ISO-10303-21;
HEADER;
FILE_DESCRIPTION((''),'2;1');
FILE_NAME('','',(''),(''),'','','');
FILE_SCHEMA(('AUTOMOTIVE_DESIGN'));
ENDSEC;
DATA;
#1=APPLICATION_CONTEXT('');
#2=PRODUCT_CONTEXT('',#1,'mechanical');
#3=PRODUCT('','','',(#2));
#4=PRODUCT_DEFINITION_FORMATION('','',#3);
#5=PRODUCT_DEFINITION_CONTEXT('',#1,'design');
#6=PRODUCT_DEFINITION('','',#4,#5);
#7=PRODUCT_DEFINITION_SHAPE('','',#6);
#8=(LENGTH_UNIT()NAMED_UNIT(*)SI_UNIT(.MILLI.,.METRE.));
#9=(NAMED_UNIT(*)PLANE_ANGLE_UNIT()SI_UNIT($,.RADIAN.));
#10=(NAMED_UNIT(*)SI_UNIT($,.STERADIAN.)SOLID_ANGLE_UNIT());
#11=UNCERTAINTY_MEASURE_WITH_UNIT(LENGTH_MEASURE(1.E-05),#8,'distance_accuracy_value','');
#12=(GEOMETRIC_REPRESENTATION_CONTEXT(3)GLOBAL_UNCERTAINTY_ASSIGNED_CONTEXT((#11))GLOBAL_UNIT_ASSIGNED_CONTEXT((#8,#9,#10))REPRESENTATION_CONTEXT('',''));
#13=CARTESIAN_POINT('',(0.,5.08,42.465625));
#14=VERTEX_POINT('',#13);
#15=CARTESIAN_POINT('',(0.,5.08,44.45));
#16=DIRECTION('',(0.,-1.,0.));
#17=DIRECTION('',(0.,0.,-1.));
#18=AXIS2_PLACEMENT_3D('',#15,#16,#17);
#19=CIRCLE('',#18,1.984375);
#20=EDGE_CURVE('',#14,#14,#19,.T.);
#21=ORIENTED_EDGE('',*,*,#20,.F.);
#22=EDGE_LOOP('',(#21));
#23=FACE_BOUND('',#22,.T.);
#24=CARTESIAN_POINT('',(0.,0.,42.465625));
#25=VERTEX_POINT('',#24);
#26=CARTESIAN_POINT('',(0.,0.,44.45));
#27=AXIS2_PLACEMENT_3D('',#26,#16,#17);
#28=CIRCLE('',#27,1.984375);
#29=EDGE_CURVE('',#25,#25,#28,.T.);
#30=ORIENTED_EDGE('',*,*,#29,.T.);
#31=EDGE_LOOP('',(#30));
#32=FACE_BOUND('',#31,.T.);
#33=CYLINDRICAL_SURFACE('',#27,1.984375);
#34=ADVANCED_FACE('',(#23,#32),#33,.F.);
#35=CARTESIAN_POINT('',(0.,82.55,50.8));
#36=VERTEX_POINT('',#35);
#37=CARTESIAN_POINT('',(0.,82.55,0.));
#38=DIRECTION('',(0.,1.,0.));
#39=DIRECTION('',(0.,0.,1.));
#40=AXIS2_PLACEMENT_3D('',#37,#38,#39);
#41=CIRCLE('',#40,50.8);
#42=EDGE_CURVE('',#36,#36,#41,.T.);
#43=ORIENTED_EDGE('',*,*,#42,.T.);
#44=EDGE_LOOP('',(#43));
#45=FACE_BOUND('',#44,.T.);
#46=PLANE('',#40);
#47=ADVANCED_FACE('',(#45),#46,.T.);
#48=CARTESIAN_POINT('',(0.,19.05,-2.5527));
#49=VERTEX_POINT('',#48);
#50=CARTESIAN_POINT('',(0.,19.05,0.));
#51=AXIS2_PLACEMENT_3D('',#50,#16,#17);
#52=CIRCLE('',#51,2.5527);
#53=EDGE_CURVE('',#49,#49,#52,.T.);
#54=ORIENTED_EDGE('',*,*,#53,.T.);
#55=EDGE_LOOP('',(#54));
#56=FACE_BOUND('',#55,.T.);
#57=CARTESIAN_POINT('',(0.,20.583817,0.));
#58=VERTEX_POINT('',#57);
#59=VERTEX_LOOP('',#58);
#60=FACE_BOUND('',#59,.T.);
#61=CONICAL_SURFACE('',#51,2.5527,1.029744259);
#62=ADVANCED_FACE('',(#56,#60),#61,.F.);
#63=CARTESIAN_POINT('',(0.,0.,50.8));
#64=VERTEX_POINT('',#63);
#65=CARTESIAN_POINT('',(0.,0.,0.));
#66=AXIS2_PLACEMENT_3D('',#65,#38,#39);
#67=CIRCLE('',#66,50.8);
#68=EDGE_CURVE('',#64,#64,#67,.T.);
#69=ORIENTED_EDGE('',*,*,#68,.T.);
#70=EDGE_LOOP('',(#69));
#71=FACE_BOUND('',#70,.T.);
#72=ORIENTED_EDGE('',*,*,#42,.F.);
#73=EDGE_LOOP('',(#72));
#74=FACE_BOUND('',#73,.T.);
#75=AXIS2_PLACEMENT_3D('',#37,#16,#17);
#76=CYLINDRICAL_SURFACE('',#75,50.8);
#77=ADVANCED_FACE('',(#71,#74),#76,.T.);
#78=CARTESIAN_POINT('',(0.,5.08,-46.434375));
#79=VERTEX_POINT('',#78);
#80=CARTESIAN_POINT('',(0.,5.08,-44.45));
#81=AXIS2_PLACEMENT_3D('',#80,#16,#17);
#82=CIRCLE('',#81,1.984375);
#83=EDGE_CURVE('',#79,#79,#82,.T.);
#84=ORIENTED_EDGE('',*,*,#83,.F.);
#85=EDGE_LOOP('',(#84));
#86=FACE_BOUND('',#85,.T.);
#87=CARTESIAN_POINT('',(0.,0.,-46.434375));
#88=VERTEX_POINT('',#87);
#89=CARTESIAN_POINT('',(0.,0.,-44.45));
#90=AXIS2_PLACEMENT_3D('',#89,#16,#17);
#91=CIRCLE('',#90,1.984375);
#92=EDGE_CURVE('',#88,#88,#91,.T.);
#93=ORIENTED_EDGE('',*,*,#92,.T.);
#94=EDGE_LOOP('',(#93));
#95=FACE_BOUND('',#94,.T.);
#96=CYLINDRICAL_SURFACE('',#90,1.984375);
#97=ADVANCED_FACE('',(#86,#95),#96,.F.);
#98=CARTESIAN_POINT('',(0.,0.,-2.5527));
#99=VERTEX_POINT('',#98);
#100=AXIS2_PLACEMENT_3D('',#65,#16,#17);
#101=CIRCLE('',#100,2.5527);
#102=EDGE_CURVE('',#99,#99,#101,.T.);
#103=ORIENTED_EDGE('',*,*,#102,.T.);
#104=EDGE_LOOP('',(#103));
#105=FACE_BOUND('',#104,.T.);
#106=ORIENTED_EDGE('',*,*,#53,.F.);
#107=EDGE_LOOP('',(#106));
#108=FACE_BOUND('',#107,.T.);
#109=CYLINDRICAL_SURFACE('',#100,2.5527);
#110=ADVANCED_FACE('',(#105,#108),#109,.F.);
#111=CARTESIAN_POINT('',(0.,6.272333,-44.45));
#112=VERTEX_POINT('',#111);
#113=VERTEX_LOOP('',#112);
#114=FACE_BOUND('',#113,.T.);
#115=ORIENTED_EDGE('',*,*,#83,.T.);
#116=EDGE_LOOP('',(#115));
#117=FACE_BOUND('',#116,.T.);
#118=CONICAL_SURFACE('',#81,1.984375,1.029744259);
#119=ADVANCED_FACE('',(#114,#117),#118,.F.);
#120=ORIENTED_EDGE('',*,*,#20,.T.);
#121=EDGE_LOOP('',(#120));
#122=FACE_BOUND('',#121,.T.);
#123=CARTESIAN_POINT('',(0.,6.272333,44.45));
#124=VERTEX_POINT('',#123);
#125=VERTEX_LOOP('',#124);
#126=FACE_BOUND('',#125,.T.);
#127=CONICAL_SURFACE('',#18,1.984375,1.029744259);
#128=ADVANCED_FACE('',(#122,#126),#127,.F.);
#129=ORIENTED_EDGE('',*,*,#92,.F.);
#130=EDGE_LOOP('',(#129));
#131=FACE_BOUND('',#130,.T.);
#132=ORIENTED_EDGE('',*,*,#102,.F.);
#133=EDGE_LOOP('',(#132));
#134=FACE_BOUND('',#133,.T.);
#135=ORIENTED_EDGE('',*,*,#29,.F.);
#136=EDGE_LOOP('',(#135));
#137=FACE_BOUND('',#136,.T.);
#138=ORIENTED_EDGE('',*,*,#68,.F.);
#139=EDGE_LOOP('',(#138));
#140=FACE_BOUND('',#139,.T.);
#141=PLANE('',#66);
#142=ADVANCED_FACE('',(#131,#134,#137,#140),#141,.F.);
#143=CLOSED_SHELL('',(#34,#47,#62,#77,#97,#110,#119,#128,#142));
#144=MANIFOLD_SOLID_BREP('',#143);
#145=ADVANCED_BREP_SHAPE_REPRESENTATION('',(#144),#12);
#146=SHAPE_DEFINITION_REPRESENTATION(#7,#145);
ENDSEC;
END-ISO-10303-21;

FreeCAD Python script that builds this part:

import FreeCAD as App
import Part
import Sketcher
Q = App.Units.Quantity

doc = App.newDocument("Part")
body = doc.addObject("PartDesign::Body", "Body")

# Sketch on XZ plane
sketch1 = doc.addObject("Sketcher::SketchObject", "Sketch")
body.addObject(sketch1)
sketch1.AttachmentSupport = (doc.XZ_Plane, [""])
sketch1.MapMode = "FlatFace"
sketch1.addGeometry(Part.Circle(App.Vector(0, 0, 0), App.Vector(0, 0, 1), 51), False)
sketch1.addConstraint([
    Sketcher.Constraint("Coincident", 0, 3, -1, 1),
    Sketcher.Constraint("Diameter", 0, Q("4 in")),
])
pad1 = doc.addObject("PartDesign::Pad", "Pad")
body.addObject(pad1)
pad1.Profile = sketch1
pad1.Length = Q("3.25 in")
pad1.Reversed = True

# Sketch on XZ plane
sketch2 = doc.addObject("Sketcher::SketchObject", "Sketch001")
body.addObject(sketch2)
sketch2.AttachmentSupport = (doc.XZ_Plane, [""])
sketch2.MapMode = "FlatFace"
sketch2.addGeometry(Part.Circle(App.Vector(0, 0, 0), App.Vector(0, 0, 1), 2.6), False)
sketch2.addConstraint([
    Sketcher.Constraint("Coincident", 0, 3, -1, 1),
    Sketcher.Constraint("Diameter", 0, Q("0.201 in")),
])
doc.recompute()
hole = doc.addObject("PartDesign::Hole", "Hole")
body.addObject(hole)
hole.Profile = sketch2
hole.ThreadType = "None"
hole.Diameter = Q("0.201 in")
hole.DepthType = "Dimension"
hole.Depth = Q("0.75 in")
hole.DrillPoint = "Angled"
hole.DrillPointAngle = 118

# Sketch on XZ plane
sketch3 = doc.addObject("Sketcher::SketchObject", "Sketch002")
body.addObject(sketch3)
sketch3.AttachmentSupport = (doc.XZ_Plane, [""])
sketch3.MapMode = "FlatFace"
sketch3.addGeometry([
    Part.Circle(App.Vector(0, -44.5, 0), App.Vector(0, 0, 1), 2),
    Part.Circle(App.Vector(0, 44.5, 0), App.Vector(0, 0, 1), 2),
], False)
sketch3.addConstraint([
    Sketcher.Constraint("Equal", 0, 1),
    Sketcher.Constraint("Symmetric", 0, 3, 1, 3, -1, 1),
    Sketcher.Constraint("PointOnObject", 0, 3, -2),
    Sketcher.Constraint("Diameter", 0, Q("0.15625 in")),
    Sketcher.Constraint("DistanceY", 0, 3, 1, 3, Q("3.5 in")),
])
doc.recompute()
hole2 = doc.addObject("PartDesign::Hole", "Hole001")
body.addObject(hole2)
hole2.Profile = sketch3
hole2.ThreadType = "None"
hole2.Diameter = Q("0.15625 in")
hole2.DepthType = "Dimension"
hole2.Depth = Q("0.2 in")
hole2.DrillPoint = "Angled"
hole2.DrillPointAngle = 118

doc.recompute()
